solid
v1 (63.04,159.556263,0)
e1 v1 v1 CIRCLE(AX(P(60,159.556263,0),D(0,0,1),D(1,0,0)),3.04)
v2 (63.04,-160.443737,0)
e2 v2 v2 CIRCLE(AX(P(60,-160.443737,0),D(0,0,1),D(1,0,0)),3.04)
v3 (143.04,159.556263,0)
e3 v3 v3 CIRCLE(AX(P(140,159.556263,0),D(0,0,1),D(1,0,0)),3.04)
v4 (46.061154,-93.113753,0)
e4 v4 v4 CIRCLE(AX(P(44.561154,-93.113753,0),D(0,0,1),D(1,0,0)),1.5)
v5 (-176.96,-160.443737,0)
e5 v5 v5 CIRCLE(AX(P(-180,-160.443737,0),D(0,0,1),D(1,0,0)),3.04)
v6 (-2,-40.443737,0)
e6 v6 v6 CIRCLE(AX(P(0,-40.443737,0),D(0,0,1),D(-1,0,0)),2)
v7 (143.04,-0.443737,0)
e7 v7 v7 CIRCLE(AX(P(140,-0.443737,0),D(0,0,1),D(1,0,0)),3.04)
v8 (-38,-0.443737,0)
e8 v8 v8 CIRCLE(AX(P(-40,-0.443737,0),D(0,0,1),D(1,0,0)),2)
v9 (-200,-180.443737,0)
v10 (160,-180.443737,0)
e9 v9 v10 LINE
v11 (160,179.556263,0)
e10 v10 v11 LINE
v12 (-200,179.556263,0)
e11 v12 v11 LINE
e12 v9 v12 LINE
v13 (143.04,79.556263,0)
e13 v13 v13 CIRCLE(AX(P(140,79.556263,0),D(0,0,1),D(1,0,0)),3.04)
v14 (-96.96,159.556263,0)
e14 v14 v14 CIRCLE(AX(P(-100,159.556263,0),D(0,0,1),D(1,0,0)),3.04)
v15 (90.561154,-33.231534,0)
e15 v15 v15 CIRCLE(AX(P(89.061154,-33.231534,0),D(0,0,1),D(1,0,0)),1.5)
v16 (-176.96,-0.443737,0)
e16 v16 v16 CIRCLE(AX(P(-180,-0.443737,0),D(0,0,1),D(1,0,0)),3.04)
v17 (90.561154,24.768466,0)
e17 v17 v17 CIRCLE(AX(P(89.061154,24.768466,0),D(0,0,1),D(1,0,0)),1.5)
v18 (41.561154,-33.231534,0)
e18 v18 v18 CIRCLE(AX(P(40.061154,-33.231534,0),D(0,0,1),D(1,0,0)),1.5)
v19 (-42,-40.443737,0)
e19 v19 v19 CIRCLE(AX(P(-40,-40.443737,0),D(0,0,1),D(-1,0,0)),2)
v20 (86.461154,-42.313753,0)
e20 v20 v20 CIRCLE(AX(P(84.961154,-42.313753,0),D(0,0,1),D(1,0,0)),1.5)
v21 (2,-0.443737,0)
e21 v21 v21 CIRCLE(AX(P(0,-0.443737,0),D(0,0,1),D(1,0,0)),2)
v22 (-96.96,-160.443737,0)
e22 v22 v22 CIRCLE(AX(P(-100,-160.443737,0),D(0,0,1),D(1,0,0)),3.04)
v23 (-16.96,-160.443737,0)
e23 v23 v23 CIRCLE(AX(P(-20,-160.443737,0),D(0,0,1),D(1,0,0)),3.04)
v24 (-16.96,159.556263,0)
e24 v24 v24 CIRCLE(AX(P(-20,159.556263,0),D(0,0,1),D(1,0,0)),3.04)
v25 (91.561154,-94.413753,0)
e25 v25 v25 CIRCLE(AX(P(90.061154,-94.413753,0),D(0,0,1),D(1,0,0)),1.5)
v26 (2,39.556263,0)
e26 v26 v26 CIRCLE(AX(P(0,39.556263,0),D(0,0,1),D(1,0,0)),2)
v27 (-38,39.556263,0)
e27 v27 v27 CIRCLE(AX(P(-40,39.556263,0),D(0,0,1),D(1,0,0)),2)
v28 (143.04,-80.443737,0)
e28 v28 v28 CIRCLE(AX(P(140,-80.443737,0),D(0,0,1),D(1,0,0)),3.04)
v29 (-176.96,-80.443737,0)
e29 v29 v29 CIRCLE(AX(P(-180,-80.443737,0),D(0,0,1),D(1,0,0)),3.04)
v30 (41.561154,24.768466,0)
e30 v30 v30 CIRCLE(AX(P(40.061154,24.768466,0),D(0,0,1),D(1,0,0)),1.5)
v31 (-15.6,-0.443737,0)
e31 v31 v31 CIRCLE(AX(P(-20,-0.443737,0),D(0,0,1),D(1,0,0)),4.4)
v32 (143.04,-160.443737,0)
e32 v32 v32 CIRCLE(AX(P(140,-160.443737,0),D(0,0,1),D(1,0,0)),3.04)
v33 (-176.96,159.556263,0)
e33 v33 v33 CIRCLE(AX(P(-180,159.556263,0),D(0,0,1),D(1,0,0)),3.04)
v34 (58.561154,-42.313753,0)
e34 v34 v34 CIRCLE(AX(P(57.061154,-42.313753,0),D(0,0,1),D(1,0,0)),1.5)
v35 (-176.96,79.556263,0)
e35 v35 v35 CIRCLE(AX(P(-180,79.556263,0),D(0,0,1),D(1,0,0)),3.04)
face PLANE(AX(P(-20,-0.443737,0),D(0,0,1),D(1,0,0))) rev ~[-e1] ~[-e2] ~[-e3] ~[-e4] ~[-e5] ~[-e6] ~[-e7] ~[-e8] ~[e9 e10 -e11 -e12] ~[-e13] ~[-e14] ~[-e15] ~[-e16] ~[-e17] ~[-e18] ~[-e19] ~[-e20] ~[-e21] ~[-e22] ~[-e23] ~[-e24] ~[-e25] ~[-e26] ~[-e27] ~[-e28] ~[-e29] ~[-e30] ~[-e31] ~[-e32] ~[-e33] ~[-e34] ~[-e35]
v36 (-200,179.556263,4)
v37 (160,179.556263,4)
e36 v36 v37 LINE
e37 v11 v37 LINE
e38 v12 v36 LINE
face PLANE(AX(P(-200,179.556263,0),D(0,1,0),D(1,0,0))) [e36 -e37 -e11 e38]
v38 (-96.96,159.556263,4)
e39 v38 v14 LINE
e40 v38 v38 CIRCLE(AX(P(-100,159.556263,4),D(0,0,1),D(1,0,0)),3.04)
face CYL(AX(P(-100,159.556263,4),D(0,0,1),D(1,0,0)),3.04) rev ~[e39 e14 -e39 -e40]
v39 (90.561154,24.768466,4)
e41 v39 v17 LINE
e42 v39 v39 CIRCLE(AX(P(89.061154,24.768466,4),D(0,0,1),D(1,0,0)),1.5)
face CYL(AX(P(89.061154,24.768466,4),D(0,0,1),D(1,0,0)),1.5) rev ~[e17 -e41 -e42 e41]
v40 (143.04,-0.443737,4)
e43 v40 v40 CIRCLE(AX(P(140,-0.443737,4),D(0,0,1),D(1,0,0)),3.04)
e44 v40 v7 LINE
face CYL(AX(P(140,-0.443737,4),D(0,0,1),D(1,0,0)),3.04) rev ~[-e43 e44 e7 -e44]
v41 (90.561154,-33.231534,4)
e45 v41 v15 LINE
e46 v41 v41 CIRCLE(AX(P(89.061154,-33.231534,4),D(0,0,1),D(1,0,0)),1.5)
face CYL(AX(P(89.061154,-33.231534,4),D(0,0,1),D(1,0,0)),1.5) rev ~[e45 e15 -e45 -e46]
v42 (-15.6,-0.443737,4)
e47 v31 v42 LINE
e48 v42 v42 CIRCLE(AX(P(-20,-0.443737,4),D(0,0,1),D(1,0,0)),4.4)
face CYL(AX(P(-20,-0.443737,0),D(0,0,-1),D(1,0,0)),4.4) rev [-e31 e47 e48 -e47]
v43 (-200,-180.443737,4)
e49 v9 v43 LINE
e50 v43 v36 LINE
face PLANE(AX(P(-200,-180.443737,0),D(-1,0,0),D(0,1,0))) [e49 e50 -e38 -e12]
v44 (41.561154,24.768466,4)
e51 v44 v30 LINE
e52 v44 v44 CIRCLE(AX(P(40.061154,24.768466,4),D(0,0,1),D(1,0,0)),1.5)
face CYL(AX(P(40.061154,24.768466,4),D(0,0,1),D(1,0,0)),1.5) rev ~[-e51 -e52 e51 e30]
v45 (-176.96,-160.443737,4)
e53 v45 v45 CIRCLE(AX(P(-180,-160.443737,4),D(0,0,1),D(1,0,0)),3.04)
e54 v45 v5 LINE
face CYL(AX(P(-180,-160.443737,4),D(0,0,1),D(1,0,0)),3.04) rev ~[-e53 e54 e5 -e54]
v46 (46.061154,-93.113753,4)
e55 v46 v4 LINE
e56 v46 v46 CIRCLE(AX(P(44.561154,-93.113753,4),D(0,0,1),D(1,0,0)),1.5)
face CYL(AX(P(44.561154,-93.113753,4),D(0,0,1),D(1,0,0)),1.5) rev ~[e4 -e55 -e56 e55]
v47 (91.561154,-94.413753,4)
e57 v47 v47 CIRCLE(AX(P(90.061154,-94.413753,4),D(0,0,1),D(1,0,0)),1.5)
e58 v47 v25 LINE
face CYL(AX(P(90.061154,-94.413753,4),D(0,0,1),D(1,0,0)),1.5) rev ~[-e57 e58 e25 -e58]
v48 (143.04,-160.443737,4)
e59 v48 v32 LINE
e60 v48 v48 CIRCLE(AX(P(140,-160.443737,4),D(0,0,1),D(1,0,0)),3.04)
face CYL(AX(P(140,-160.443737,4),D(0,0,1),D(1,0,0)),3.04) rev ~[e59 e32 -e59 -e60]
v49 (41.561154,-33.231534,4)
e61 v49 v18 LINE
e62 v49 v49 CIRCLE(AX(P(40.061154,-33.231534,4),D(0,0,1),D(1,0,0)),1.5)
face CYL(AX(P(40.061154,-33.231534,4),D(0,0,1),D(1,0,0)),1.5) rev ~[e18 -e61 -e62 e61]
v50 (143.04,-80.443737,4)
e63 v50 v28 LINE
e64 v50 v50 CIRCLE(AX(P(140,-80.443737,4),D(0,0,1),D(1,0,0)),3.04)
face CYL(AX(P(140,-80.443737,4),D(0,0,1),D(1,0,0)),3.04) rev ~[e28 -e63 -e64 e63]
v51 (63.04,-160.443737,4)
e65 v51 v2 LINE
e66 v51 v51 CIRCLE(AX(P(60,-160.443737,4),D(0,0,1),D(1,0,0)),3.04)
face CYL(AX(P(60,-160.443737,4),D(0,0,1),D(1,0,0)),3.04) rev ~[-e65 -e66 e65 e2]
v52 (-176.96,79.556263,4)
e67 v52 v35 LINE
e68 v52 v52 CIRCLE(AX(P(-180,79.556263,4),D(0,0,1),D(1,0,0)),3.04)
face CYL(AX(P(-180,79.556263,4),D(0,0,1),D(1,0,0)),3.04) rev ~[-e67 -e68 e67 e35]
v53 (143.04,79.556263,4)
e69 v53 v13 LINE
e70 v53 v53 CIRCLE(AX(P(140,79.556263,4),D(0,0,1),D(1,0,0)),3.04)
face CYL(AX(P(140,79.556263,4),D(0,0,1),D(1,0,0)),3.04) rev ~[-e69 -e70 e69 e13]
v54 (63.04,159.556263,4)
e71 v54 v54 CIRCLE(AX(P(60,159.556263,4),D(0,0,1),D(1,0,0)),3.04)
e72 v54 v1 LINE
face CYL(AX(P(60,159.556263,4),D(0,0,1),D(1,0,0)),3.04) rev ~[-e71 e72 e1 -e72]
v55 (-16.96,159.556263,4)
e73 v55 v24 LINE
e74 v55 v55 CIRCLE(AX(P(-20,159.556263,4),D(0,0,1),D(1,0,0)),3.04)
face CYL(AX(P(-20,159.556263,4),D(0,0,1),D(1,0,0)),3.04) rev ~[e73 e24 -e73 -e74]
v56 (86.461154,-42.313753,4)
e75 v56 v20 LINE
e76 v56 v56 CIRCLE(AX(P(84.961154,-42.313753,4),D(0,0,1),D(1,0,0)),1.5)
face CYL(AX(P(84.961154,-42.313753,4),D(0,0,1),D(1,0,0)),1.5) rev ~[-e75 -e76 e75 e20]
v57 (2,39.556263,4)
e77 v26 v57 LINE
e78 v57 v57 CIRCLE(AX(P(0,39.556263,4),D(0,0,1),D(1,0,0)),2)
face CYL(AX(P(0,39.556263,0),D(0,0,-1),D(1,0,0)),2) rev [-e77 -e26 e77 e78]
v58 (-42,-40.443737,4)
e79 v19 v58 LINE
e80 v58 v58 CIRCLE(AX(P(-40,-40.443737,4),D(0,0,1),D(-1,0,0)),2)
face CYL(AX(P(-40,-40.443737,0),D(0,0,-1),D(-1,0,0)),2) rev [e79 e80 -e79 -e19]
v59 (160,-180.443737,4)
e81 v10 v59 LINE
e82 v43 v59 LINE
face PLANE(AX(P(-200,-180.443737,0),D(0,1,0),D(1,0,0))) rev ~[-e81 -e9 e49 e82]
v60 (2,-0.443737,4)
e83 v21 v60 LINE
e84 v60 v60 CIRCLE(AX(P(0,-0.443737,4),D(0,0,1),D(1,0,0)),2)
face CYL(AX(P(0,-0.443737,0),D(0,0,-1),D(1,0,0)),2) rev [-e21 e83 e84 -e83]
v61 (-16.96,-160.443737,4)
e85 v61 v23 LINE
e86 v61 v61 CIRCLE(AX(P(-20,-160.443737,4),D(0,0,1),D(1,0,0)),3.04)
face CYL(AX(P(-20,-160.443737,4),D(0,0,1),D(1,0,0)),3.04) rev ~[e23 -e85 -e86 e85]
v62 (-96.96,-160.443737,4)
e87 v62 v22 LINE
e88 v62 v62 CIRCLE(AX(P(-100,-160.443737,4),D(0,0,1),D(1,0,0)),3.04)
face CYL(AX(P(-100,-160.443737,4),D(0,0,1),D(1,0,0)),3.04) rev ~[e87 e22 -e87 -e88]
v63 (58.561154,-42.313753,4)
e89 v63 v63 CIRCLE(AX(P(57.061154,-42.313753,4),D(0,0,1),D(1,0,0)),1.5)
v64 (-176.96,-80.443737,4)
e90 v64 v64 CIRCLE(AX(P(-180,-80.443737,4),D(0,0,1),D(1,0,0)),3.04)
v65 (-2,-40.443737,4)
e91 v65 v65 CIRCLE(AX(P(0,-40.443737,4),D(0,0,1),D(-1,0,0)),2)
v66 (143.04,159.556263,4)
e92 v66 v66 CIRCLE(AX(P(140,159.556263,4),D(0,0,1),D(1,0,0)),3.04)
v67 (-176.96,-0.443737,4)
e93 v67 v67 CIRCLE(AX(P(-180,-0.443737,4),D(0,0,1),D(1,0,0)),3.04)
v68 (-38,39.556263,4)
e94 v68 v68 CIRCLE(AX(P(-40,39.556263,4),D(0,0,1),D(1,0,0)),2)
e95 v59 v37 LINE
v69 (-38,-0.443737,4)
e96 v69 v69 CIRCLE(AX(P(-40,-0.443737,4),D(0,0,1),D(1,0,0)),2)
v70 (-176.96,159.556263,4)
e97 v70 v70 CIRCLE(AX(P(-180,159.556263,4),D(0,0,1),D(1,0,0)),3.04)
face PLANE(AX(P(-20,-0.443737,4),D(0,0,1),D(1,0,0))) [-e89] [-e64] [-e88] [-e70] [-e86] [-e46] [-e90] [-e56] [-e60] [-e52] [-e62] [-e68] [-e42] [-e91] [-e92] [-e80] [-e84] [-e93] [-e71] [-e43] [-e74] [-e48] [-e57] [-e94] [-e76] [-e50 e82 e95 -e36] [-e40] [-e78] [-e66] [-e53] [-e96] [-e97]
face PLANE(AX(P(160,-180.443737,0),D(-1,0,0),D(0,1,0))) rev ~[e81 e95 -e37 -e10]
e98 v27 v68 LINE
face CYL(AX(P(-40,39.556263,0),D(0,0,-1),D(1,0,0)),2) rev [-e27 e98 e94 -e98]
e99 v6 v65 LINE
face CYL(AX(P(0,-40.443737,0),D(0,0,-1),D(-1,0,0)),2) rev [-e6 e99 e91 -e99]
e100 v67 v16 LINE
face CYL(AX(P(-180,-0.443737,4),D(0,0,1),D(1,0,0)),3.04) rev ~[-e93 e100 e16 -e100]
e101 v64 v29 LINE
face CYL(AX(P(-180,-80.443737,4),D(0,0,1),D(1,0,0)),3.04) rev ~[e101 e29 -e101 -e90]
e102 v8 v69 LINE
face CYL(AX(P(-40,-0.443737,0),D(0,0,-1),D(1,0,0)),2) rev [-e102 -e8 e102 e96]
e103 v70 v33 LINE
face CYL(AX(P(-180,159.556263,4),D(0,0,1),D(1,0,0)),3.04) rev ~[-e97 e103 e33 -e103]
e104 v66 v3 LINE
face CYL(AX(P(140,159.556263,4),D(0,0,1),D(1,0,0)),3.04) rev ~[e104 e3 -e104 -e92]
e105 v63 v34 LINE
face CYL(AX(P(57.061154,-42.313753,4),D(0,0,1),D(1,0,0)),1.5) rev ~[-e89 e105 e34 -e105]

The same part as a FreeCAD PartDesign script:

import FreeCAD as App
import Part
import Sketcher
Q = App.Units.Quantity

doc = App.newDocument("Part")
body = doc.addObject("PartDesign::Body", "Body")

# Sketch on XY plane
sketch1 = body.newObject("Sketcher::SketchObject", "Sketch")
sketch1.AttachmentSupport = (doc.getObject("XY_Plane"), [""])
sketch1.MapMode = "FlatFace"
sketch1.addGeometry(Part.LineSegment(App.Vector(-200, 179.6, 0), App.Vector(-200, -180.4, 0)), False)
sketch1.addGeometry(Part.LineSegment(App.Vector(-200, -180.4, 0), App.Vector(160, -180.4, 0)), False)
sketch1.addGeometry(Part.LineSegment(App.Vector(160, -180.4, 0), App.Vector(160, 179.6, 0)), False)
sketch1.addGeometry(Part.LineSegment(App.Vector(160, 179.6, 0), App.Vector(-200, 179.6, 0)), False)
sketch1.addGeometry(Part.Circle(App.Vector(-40, -40.4, 0), App.Vector(0, 0, 1), 2), False)
sketch1.addGeometry(Part.Circle(App.Vector(0, -40.4, 0), App.Vector(0, 0, 1), 2), False)
sketch1.addGeometry(Part.Circle(App.Vector(-40, -0.4, 0), App.Vector(0, 0, 1), 2), False)
sketch1.addGeometry(Part.Circle(App.Vector(-40, 39.6, 0), App.Vector(0, 0, 1), 2), False)
sketch1.addGeometry(Part.Circle(App.Vector(-20, -0.4, 0), App.Vector(0, 0, 1), 4.4), False)
sketch1.addGeometry(Part.Circle(App.Vector(0, -0.4, 0), App.Vector(0, 0, 1), 2), False)
sketch1.addGeometry(Part.Circle(App.Vector(0, 39.6, 0), App.Vector(0, 0, 1), 2), False)
sketch1.addConstraint(Sketcher.Constraint("Coincident", 0, 2, 1, 1))
sketch1.addConstraint(Sketcher.Constraint("Coincident", 1, 2, 2, 1))
sketch1.addConstraint(Sketcher.Constraint("Coincident", 2, 2, 3, 1))
sketch1.addConstraint(Sketcher.Constraint("Coincident", 3, 2, 0, 1))
sketch1.addConstraint(Sketcher.Constraint("Vertical", 0))
sketch1.addConstraint(Sketcher.Constraint("Horizontal", 1))
sketch1.addConstraint(Sketcher.Constraint("Vertical", 2))
sketch1.addConstraint(Sketcher.Constraint("Horizontal", 3))
sketch1.addConstraint(Sketcher.Constraint("Equal", 4, 5))
sketch1.addConstraint(Sketcher.Constraint("Equal", 5, 6))
sketch1.addConstraint(Sketcher.Constraint("Equal", 6, 7))
sketch1.addConstraint(Sketcher.Constraint("Equal", 7, 9))
sketch1.addConstraint(Sketcher.Constraint("Equal", 9, 10))
sketch1.addConstraint(Sketcher.Constraint("PointOnObject", 5, 3, -2))
sketch1.addConstraint(Sketcher.Constraint("PointOnObject", 9, 3, -2))
sketch1.addConstraint(Sketcher.Constraint("PointOnObject", 10, 3, -2))
sketch1.addConstraint(Sketcher.Constraint("Horizontal", 4, 3, 5, 3))
sketch1.addConstraint(Sketcher.Constraint("Horizontal", 6, 3, 8, 3))
sketch1.addConstraint(Sketcher.Constraint("Horizontal", 8, 3, 9, 3))
sketch1.addConstraint(Sketcher.Constraint("Horizontal", 7, 3, 10, 3))
sketch1.addConstraint(Sketcher.Constraint("Vertical", 4, 3, 6, 3))
sketch1.addConstraint(Sketcher.Constraint("Vertical", 6, 3, 7, 3))
sketch1.addConstraint(Sketcher.Constraint("Equal", 3, 0))
sketch1.addConstraint(Sketcher.Constraint("Diameter", 4, Q("4 mm")))
sketch1.addConstraint(Sketcher.Constraint("Diameter", 8, Q("8.8 mm")))
sketch1.addConstraint(Sketcher.Constraint("DistanceX", 1, 1, 1, 2, Q("360 mm")))
sketch1.addConstraint(Sketcher.Constraint("DistanceX", 4, 3, -1, 1, Q("40 mm")))
sketch1.addConstraint(Sketcher.Constraint("DistanceX", 8, 3, -1, 1, Q("20 mm")))
sketch1.addConstraint(Sketcher.Constraint("DistanceX", 0, 2, -1, 1, Q("200 mm")))
sketch1.addConstraint(Sketcher.Constraint("DistanceY", 4, 3, 6, 3, Q("40 mm")))
sketch1.addConstraint(Sketcher.Constraint("DistanceY", 6, 3, 7, 3, Q("40 mm")))
sketch1.addConstraint(Sketcher.Constraint("DistanceY", 0, 2, 4, 3, Q("140 mm")))
sketch1.addConstraint(Sketcher.Constraint("DistanceY", 4, 3, -1, 1, Q("40.443737 mm")))
pad1 = body.newObject("PartDesign::Pad", "Pad")
pad1.Profile = sketch1
pad1.Length = 4

# Sketch on XY plane
sketch2 = body.newObject("Sketcher::SketchObject", "Sketch001")
sketch2.AttachmentSupport = (doc.getObject("XY_Plane"), [""])
sketch2.MapMode = "FlatFace"
sketch2.AttachmentOffset = App.Placement(App.Vector(0, 0, 4), App.Rotation())
sketch2.addGeometry(Part.Circle(App.Vector(57.1, -42.3, 0), App.Vector(0, 0, 1), 1.5), False)
sketch2.addGeometry(Part.Circle(App.Vector(85, -42.3, 0), App.Vector(0, 0, 1), 1.5), False)
sketch2.addGeometry(Part.Circle(App.Vector(44.6, -93.1, 0), App.Vector(0, 0, 1), 1.5), False)
sketch2.addGeometry(Part.Circle(App.Vector(90.1, -94.4, 0), App.Vector(0, 0, 1), 1.5), False)
sketch2.addGeometry(Part.Circle(App.Vector(40.1, 24.8, 0), App.Vector(0, 0, 1), 1.5), False)
sketch2.addGeometry(Part.Circle(App.Vector(89.1, 24.8, 0), App.Vector(0, 0, 1), 1.5), False)
sketch2.addGeometry(Part.Circle(App.Vector(40.1, -33.2, 0), App.Vector(0, 0, 1), 1.5), False)
sketch2.addGeometry(Part.Circle(App.Vector(89.1, -33.2, 0), App.Vector(0, 0, 1), 1.5), False)
sketch2.addConstraint(Sketcher.Constraint("Equal", 0, 1))
sketch2.addConstraint(Sketcher.Constraint("Equal", 1, 2))
sketch2.addConstraint(Sketcher.Constraint("Equal", 2, 3))
sketch2.addConstraint(Sketcher.Constraint("Equal", 3, 4))
sketch2.addConstraint(Sketcher.Constraint("Equal", 4, 5))
sketch2.addConstraint(Sketcher.Constraint("Equal", 5, 6))
sketch2.addConstraint(Sketcher.Constraint("Equal", 6, 7))
sketch2.addConstraint(Sketcher.Constraint("Horizontal", 0, 3, 1, 3))
sketch2.addConstraint(Sketcher.Constraint("Horizontal", 4, 3, 5, 3))
sketch2.addConstraint(Sketcher.Constraint("Horizontal", 6, 3, 7, 3))
sketch2.addConstraint(Sketcher.Constraint("Vertical", 4, 3, 6, 3))
sketch2.addConstraint(Sketcher.Constraint("Vertical", 5, 3, 7, 3))
sketch2.addConstraint(Sketcher.Constraint("Diameter", 0, Q("3 mm")))
sketch2.addConstraint(Sketcher.Constraint("DistanceX", 0, 3, 3, 3, Q("33 mm")))
sketch2.addConstraint(Sketcher.Constraint("DistanceX", 4, 3, 0, 3, Q("17 mm")))
sketch2.addConstraint(Sketcher.Constraint("DistanceX", 4, 3, 5, 3, Q("49 mm")))
sketch2.addConstraint(Sketcher.Constraint("DistanceY", 6, 3, 4, 3, Q("58 mm")))
sketch2.addConstraint(Sketcher.Constraint("DistanceX", 0, 3, 1, 3, Q("27.9 mm")))
sketch2.addConstraint(Sketcher.Constraint("DistanceX", 2, 3, 0, 3, Q("12.5 mm")))
sketch2.addConstraint(Sketcher.Constraint("DistanceY", 2, 3, 0, 3, Q("50.8 mm")))
sketch2.addConstraint(Sketcher.Constraint("DistanceY", 3, 3, 2, 3, Q("1.3 mm")))
sketch2.addConstraint(Sketcher.Constraint("DistanceY", 0, 3, 4, 3, Q("67.082219 mm")))
sketch2.addConstraint(Sketcher.Constraint("DistanceX", -1, 1, 0, 3, Q("57.061154 mm")))
sketch2.addConstraint(Sketcher.Constraint("DistanceY", 0, 3, -1, 1, Q("42.313753 mm")))
pocket1 = body.newObject("PartDesign::Pocket", "Pocket")
pocket1.Profile = sketch2
pocket1.Length = 20

# Sketch on XY plane
sketch3 = body.newObject("Sketcher::SketchObject", "Sketch002")
sketch3.AttachmentSupport = (doc.getObject("XY_Plane"), [""])
sketch3.MapMode = "FlatFace"
sketch3.AttachmentOffset = App.Placement(App.Vector(0, 0, 4), App.Rotation())
sketch3.addGeometry(Part.Circle(App.Vector(-180, -160.4, 0), App.Vector(0, 0, 1), 3), False)
sketch3.addGeometry(Part.Circle(App.Vector(-180, -80.4, 0), App.Vector(0, 0, 1), 3), False)
sketch3.addGeometry(Part.Circle(App.Vector(-180, -0.4, 0), App.Vector(0, 0, 1), 3), False)
sketch3.addGeometry(Part.Circle(App.Vector(-180, 79.6, 0), App.Vector(0, 0, 1), 3), False)
sketch3.addGeometry(Part.Circle(App.Vector(-180, 159.6, 0), App.Vector(0, 0, 1), 3), False)
sketch3.addGeometry(Part.Circle(App.Vector(-100, 159.6, 0), App.Vector(0, 0, 1), 3), False)
sketch3.addGeometry(Part.Circle(App.Vector(-20, 159.6, 0), App.Vector(0, 0, 1), 3), False)
sketch3.addGeometry(Part.Circle(App.Vector(60, 159.6, 0), App.Vector(0, 0, 1), 3), False)
sketch3.addGeometry(Part.Circle(App.Vector(140, 159.6, 0), App.Vector(0, 0, 1), 3), False)
sketch3.addGeometry(Part.Circle(App.Vector(140, 79.6, 0), App.Vector(0, 0, 1), 3), False)
sketch3.addGeometry(Part.Circle(App.Vector(140, -0.4, 0), App.Vector(0, 0, 1), 3), False)
sketch3.addGeometry(Part.Circle(App.Vector(140, -80.4, 0), App.Vector(0, 0, 1), 3), False)
sketch3.addGeometry(Part.Circle(App.Vector(140, -160.4, 0), App.Vector(0, 0, 1), 3), False)
sketch3.addGeometry(Part.Circle(App.Vector(60, -160.4, 0), App.Vector(0, 0, 1), 3), False)
sketch3.addGeometry(Part.Circle(App.Vector(-20, -160.4, 0), App.Vector(0, 0, 1), 3), False)
sketch3.addGeometry(Part.Circle(App.Vector(-100, -160.4, 0), App.Vector(0, 0, 1), 3), False)
sketch3.addConstraint(Sketcher.Constraint("Equal", 0, 1))
sketch3.addConstraint(Sketcher.Constraint("Equal", 1, 2))
sketch3.addConstraint(Sketcher.Constraint("Equal", 2, 3))
sketch3.addConstraint(Sketcher.Constraint("Equal", 3, 4))
sketch3.addConstraint(Sketcher.Constraint("Equal", 4, 5))
sketch3.addConstraint(Sketcher.Constraint("Equal", 5, 6))
sketch3.addConstraint(Sketcher.Constraint("Equal", 6, 7))
sketch3.addConstraint(Sketcher.Constraint("Equal", 7, 8))
sketch3.addConstraint(Sketcher.Constraint("Equal", 8, 9))
sketch3.addConstraint(Sketcher.Constraint("Equal", 9, 10))
sketch3.addConstraint(Sketcher.Constraint("Equal", 10, 11))
sketch3.addConstraint(Sketcher.Constraint("Equal", 11, 12))
sketch3.addConstraint(Sketcher.Constraint("Equal", 12, 13))
sketch3.addConstraint(Sketcher.Constraint("Equal", 13, 14))
sketch3.addConstraint(Sketcher.Constraint("Equal", 14, 15))
sketch3.addConstraint(Sketcher.Constraint("Horizontal", 4, 3, 5, 3))
sketch3.addConstraint(Sketcher.Constraint("Horizontal", 5, 3, 6, 3))
sketch3.addConstraint(Sketcher.Constraint("Horizontal", 6, 3, 7, 3))
sketch3.addConstraint(Sketcher.Constraint("Horizontal", 7, 3, 8, 3))
sketch3.addConstraint(Sketcher.Constraint("Horizontal", 3, 3, 9, 3))
sketch3.addConstraint(Sketcher.Constraint("Horizontal", 2, 3, 10, 3))
sketch3.addConstraint(Sketcher.Constraint("Horizontal", 1, 3, 11, 3))
sketch3.addConstraint(Sketcher.Constraint("Horizontal", 0, 3, 12, 3))
sketch3.addConstraint(Sketcher.Constraint("Horizontal", 12, 3, 13, 3))
sketch3.addConstraint(Sketcher.Constraint("Horizontal", 13, 3, 14, 3))
sketch3.addConstraint(Sketcher.Constraint("Horizontal", 14, 3, 15, 3))
sketch3.addConstraint(Sketcher.Constraint("Vertical", 0, 3, 1, 3))
sketch3.addConstraint(Sketcher.Constraint("Vertical", 1, 3, 2, 3))
sketch3.addConstraint(Sketcher.Constraint("Vertical", 2, 3, 3, 3))
sketch3.addConstraint(Sketcher.Constraint("Vertical", 3, 3, 4, 3))
sketch3.addConstraint(Sketcher.Constraint("Vertical", 8, 3, 9, 3))
sketch3.addConstraint(Sketcher.Constraint("Vertical", 9, 3, 10, 3))
sketch3.addConstraint(Sketcher.Constraint("Vertical", 10, 3, 11, 3))
sketch3.addConstraint(Sketcher.Constraint("Vertical", 11, 3, 12, 3))
sketch3.addConstraint(Sketcher.Constraint("Vertical", 7, 3, 13, 3))
sketch3.addConstraint(Sketcher.Constraint("Vertical", 6, 3, 14, 3))
sketch3.addConstraint(Sketcher.Constraint("Vertical", 5, 3, 15, 3))
sketch3.addConstraint(Sketcher.Constraint("Diameter", 0, Q("6.08 mm")))
sketch3.addConstraint(Sketcher.Constraint("DistanceX", 0, 3, -1, 1, Q("180 mm")))
sketch3.addConstraint(Sketcher.Constraint("DistanceX", 5, 3, -1, 1, Q("100 mm")))
sketch3.addConstraint(Sketcher.Constraint("DistanceX", 6, 3, -1, 1, Q("20 mm")))
sketch3.addConstraint(Sketcher.Constraint("DistanceX", -1, 1, 7, 3, Q("60 mm")))
sketch3.addConstraint(Sketcher.Constraint("DistanceX", -1, 1, 8, 3, Q("140 mm")))
sketch3.addConstraint(Sketcher.Constraint("DistanceY", 0, 3, 1, 3, Q("80 mm")))
sketch3.addConstraint(Sketcher.Constraint("DistanceY", 1, 3, 2, 3, Q("80 mm")))
sketch3.addConstraint(Sketcher.Constraint("DistanceY", 2, 3, 3, 3, Q("80 mm")))
sketch3.addConstraint(Sketcher.Constraint("DistanceY", 3, 3, 4, 3, Q("80 mm")))
sketch3.addConstraint(Sketcher.Constraint("DistanceY", 0, 3, -1, 1, Q("160.443737 mm")))
pocket2 = body.newObject("PartDesign::Pocket", "Pocket001")
pocket2.Profile = sketch3
pocket2.Length = 20

doc.recompute()
